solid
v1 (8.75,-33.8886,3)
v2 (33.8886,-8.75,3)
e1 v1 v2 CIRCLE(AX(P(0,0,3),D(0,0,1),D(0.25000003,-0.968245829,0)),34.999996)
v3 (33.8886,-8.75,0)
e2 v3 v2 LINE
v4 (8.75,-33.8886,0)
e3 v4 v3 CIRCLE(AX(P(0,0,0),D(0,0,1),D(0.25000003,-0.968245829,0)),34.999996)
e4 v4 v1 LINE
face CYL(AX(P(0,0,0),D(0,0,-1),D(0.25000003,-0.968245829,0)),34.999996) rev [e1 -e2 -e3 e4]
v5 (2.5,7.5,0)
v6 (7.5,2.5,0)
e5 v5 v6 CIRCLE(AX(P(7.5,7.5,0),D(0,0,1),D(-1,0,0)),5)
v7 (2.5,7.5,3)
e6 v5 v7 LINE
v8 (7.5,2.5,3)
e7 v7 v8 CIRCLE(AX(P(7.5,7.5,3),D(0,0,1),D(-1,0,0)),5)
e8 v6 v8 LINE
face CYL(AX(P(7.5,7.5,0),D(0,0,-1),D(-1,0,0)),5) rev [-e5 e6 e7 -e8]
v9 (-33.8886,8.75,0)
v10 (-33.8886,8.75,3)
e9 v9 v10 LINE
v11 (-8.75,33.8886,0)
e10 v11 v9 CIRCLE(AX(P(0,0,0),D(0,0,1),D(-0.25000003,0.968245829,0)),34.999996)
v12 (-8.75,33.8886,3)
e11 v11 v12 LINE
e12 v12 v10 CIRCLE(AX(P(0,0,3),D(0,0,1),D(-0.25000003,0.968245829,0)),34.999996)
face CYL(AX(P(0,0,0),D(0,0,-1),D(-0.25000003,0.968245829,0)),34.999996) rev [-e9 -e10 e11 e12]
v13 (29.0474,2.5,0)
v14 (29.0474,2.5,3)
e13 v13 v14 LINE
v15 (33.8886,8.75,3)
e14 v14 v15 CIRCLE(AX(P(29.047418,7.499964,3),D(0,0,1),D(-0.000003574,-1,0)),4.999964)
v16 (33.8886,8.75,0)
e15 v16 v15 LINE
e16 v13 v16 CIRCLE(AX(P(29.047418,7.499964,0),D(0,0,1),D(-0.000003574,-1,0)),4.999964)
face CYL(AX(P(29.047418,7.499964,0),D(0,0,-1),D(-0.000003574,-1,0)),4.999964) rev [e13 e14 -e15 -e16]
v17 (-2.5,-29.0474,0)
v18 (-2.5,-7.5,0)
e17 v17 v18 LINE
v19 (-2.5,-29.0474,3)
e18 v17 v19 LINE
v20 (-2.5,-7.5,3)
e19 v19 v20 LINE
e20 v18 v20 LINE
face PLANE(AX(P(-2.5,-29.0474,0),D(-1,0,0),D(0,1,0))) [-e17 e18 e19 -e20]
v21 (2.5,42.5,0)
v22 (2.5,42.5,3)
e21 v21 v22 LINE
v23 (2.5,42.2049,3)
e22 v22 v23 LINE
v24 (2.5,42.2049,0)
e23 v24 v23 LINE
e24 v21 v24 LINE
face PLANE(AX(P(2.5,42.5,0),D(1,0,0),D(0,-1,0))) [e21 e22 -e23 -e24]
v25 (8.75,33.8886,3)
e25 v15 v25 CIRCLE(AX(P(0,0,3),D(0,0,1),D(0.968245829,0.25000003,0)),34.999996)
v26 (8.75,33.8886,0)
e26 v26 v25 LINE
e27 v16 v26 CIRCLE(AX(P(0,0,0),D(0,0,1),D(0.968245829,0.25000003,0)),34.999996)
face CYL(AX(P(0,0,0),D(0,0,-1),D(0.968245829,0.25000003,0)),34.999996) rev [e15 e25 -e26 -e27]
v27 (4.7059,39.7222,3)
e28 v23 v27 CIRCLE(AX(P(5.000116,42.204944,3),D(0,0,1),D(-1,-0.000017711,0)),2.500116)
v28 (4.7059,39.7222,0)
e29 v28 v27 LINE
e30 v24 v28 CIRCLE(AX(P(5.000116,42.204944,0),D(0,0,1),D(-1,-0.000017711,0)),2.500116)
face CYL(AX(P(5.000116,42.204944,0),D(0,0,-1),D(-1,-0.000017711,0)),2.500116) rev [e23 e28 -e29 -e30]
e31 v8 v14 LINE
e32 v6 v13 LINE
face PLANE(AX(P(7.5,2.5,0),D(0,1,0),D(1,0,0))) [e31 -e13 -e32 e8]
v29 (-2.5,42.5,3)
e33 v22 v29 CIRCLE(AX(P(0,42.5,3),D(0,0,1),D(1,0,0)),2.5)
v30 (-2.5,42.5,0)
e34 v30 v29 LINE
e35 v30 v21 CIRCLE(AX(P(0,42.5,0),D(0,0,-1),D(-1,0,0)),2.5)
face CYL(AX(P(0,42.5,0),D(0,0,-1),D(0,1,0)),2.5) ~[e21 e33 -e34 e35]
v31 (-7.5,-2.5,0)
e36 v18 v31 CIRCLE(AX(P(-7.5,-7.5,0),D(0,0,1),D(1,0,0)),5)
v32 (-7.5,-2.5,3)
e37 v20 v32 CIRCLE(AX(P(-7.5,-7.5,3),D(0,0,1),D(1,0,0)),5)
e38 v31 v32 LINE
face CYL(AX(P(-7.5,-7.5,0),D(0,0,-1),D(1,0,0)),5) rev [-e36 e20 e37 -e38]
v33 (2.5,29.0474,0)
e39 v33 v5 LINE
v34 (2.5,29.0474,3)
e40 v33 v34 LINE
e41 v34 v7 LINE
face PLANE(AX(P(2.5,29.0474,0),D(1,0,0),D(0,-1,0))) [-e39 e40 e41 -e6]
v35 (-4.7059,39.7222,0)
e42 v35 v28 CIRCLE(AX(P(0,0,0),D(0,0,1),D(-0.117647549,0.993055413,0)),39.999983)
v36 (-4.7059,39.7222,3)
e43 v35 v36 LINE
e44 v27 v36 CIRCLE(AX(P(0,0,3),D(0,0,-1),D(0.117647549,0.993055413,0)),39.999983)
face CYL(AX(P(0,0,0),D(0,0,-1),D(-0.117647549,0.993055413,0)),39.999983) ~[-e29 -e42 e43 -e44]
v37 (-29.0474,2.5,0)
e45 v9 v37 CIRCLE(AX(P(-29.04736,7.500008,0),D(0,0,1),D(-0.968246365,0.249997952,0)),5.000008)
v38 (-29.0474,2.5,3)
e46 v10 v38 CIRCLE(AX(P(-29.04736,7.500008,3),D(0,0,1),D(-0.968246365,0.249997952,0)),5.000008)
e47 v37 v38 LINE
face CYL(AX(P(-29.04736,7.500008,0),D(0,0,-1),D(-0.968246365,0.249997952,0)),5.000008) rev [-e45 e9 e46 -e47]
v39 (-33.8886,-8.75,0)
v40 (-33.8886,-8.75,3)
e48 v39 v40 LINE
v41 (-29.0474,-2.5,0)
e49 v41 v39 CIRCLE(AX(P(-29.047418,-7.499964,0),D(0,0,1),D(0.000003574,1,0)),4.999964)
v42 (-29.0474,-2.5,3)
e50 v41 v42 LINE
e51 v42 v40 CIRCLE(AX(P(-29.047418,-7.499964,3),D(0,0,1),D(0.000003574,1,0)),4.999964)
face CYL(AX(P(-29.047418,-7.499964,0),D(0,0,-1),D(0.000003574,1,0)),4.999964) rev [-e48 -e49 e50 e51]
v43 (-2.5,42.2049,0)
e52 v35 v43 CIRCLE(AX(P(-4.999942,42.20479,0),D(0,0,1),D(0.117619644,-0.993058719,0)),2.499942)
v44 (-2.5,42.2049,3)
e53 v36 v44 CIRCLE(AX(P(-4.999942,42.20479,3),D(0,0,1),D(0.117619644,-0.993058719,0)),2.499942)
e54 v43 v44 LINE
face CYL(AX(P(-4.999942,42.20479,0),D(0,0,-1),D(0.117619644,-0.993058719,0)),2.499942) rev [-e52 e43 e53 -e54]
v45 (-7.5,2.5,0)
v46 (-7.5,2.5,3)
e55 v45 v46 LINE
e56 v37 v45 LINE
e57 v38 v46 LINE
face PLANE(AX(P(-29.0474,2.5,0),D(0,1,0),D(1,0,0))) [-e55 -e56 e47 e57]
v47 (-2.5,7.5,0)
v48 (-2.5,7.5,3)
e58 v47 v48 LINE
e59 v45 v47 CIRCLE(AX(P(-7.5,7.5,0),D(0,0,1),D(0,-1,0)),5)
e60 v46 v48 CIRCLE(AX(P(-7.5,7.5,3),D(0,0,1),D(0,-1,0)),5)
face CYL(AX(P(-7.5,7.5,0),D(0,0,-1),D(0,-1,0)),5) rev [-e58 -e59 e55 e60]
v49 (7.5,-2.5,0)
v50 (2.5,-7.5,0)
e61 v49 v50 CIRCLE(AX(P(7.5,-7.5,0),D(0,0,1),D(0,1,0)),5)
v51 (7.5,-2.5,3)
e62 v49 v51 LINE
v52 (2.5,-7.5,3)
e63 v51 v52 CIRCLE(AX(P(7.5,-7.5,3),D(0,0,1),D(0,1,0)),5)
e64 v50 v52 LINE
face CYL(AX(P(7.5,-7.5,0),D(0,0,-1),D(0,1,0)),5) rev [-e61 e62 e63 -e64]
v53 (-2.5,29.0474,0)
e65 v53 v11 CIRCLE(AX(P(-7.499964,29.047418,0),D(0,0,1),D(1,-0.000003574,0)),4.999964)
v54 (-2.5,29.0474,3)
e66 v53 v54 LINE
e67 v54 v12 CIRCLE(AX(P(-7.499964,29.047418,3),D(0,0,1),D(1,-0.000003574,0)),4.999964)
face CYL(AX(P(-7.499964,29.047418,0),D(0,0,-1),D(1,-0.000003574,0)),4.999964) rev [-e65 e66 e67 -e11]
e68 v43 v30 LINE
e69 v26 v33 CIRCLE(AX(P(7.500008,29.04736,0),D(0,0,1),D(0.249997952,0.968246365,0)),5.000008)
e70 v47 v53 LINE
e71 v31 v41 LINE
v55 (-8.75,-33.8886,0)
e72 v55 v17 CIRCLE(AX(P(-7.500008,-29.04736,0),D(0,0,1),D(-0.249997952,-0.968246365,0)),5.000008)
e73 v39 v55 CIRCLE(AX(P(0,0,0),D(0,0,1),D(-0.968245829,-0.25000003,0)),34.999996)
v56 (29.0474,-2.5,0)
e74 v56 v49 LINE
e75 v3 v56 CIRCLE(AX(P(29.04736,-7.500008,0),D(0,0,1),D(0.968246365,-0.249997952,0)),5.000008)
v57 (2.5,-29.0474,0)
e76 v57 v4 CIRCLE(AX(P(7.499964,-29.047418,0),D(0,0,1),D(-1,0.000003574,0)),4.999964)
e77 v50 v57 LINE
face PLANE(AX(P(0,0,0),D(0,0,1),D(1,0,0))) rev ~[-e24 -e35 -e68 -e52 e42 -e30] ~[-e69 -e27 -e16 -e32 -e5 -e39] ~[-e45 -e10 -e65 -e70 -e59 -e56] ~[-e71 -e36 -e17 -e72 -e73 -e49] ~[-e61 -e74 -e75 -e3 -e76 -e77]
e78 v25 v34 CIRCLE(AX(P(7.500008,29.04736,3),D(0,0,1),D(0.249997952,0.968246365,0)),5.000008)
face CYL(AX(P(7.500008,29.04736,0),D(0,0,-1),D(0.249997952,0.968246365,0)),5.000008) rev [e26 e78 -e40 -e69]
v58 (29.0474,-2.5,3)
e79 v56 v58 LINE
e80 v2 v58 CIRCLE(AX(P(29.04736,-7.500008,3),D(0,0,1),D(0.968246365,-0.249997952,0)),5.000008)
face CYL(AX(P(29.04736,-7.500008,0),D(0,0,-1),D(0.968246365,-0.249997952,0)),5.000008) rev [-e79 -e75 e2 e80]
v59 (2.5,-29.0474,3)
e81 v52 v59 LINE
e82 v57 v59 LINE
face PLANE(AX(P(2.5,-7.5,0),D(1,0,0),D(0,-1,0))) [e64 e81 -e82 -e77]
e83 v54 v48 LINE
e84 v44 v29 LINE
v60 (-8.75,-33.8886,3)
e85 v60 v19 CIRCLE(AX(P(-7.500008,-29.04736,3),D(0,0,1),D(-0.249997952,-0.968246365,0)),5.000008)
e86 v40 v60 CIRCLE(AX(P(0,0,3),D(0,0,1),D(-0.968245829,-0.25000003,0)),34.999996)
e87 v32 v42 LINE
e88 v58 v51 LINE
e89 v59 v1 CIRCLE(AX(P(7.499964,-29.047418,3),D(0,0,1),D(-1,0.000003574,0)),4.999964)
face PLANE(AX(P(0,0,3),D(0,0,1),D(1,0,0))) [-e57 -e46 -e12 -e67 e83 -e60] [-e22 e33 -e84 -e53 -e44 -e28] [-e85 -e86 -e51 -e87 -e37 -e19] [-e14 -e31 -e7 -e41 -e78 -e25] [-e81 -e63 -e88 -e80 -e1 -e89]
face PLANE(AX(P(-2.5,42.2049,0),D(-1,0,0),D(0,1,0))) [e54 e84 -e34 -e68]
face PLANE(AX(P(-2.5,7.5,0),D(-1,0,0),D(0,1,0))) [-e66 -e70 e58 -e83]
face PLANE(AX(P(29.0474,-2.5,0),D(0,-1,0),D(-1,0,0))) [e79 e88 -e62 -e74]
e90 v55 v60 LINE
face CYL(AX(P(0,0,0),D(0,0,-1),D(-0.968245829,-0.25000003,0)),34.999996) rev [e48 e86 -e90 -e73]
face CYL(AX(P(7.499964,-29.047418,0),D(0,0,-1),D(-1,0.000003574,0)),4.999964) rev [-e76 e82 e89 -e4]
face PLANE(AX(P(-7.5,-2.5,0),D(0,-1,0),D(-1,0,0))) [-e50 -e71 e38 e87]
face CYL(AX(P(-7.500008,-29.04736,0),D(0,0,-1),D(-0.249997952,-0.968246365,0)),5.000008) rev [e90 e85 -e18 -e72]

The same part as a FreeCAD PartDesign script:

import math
import FreeCAD as App
import Part
import Sketcher
from FreeCAD import Vector
Q = App.Units.Quantity

doc = App.newDocument("Part")
body = doc.addObject("PartDesign::Body", "Body")

# Sketch on XY plane
sketch1 = body.newObject("Sketcher::SketchObject", "Sketch")
sketch1.AttachmentSupport = (doc.getObject("XY_Plane"), [""])
sketch1.MapMode = "FlatFace"
sketch1.addGeometry([
    Part.ArcOfCircle(Part.Circle(Vector(5, 42.2, 0), Vector(0, 0, 1), 2.5), math.radians(180), math.radians(263)),  # 0
    Part.LineSegment(Vector(2.5, 42.2, 0), Vector(2.5, 42.5, 0)),  # 1
    Part.ArcOfCircle(Part.Circle(Vector(0, 42.5, 0), Vector(0, 0, 1), 2.5), math.radians(0), math.radians(180)),  # 2
    Part.LineSegment(Vector(-2.5, 42.5, 0), Vector(-2.5, 42.2, 0)),  # 3
    Part.ArcOfCircle(Part.Circle(Vector(-5, 42.2, 0), Vector(0, 0, 1), 2.5), math.radians(-83), math.radians(0)),  # 4
    Part.ArcOfCircle(Part.Circle(Vector(0, 0, 0), Vector(0, 0, 1), 40), math.radians(97), math.radians(443)),  # 5
    Part.ArcOfCircle(Part.Circle(Vector(29.05, 7.5, 0), Vector(0, 0, 1), 5), math.radians(-90), math.radians(14)),  # 6
    Part.LineSegment(Vector(29.05, 2.5, 0), Vector(7.5, 2.5, 0)),  # 7
    Part.ArcOfCircle(Part.Circle(Vector(7.5, 7.5, 0), Vector(0, 0, 1), 5), math.radians(180), math.radians(270)),  # 8
    Part.LineSegment(Vector(2.5, 7.5, 0), Vector(2.5, 29.05, 0)),  # 9
    Part.ArcOfCircle(Part.Circle(Vector(7.5, 29.05, 0), Vector(0, 0, 1), 5), math.radians(76), math.radians(180)),  # 10
    Part.ArcOfCircle(Part.Circle(Vector(0, 0, 0), Vector(0, 0, 1), 35), math.radians(14), math.radians(76)),  # 11
    Part.ArcOfCircle(Part.Circle(Vector(0, 0, 0), Vector(0, 0, 1), 35), math.radians(-166), math.radians(-104)),  # 12
    Part.ArcOfCircle(Part.Circle(Vector(-29.05, -7.5, 0), Vector(0, 0, 1), 5), math.radians(90), math.radians(194)),  # 13
    Part.LineSegment(Vector(-29.05, -2.5, 0), Vector(-7.5, -2.5, 0)),  # 14
    Part.ArcOfCircle(Part.Circle(Vector(-7.5, -7.5, 0), Vector(0, 0, 1), 5), math.radians(0), math.radians(90)),  # 15
    Part.LineSegment(Vector(-2.5, -7.5, 0), Vector(-2.5, -29.05, 0)),  # 16
    Part.ArcOfCircle(Part.Circle(Vector(-7.5, -29.05, 0), Vector(0, 0, 1), 5), math.radians(-104), math.radians(0)),  # 17
    Part.ArcOfCircle(Part.Circle(Vector(0, 0, 0), Vector(0, 0, 1), 35), math.radians(-76), math.radians(-14)),  # 18
    Part.ArcOfCircle(Part.Circle(Vector(7.5, -29.05, 0), Vector(0, 0, 1), 5), math.radians(180), math.radians(284)),  # 19
    Part.LineSegment(Vector(2.5, -29.05, 0), Vector(2.5, -7.5, 0)),  # 20
    Part.ArcOfCircle(Part.Circle(Vector(7.5, -7.5, 0), Vector(0, 0, 1), 5), math.radians(90), math.radians(180)),  # 21
    Part.LineSegment(Vector(7.5, -2.5, 0), Vector(29.05, -2.5, 0)),  # 22
    Part.ArcOfCircle(Part.Circle(Vector(29.05, -7.5, 0), Vector(0, 0, 1), 5), math.radians(-14), math.radians(90)),  # 23
    Part.ArcOfCircle(Part.Circle(Vector(0, 0, 0), Vector(0, 0, 1), 35), math.radians(104), math.radians(166)),  # 24
    Part.ArcOfCircle(Part.Circle(Vector(-7.5, 29.05, 0), Vector(0, 0, 1), 5), math.radians(0), math.radians(104)),  # 25
    Part.LineSegment(Vector(-2.5, 29.05, 0), Vector(-2.5, 7.5, 0)),  # 26
    Part.ArcOfCircle(Part.Circle(Vector(-7.5, 7.5, 0), Vector(0, 0, 1), 5), math.radians(-90), math.radians(0)),  # 27
    Part.LineSegment(Vector(-7.5, 2.5, 0), Vector(-29.05, 2.5, 0)),  # 28
    Part.ArcOfCircle(Part.Circle(Vector(-29.05, 7.5, 0), Vector(0, 0, 1), 5), math.radians(166), math.radians(270)),  # 29
], False)
sketch1.addConstraint([
    Sketcher.Constraint("Tangent", 0, 1, 1, 1),
    Sketcher.Constraint("Tangent", 1, 2, 2, 1),
    Sketcher.Constraint("Tangent", 2, 2, 3, 1),
    Sketcher.Constraint("Tangent", 3, 2, 4, 2),
    Sketcher.Constraint("Tangent", 4, 1, 5, 1),
    Sketcher.Constraint("Tangent", 5, 2, 0, 2),
    Sketcher.Constraint("Tangent", 6, 1, 7, 1),
    Sketcher.Constraint("Tangent", 7, 2, 8, 2),
    Sketcher.Constraint("Tangent", 8, 1, 9, 1),
    Sketcher.Constraint("Tangent", 9, 2, 10, 2),
    Sketcher.Constraint("Tangent", 10, 1, 11, 2),
    Sketcher.Constraint("Tangent", 11, 1, 6, 2),
    Sketcher.Constraint("Tangent", 12, 1, 13, 2),
    Sketcher.Constraint("Tangent", 13, 1, 14, 1),
    Sketcher.Constraint("Tangent", 14, 2, 15, 2),
    Sketcher.Constraint("Tangent", 15, 1, 16, 1),
    Sketcher.Constraint("Tangent", 16, 2, 17, 2),
    Sketcher.Constraint("Tangent", 17, 1, 12, 2),
    Sketcher.Constraint("Tangent", 18, 1, 19, 2),
    Sketcher.Constraint("Tangent", 19, 1, 20, 1),
    Sketcher.Constraint("Tangent", 20, 2, 21, 2),
    Sketcher.Constraint("Tangent", 21, 1, 22, 1),
    Sketcher.Constraint("Tangent", 22, 2, 23, 2),
    Sketcher.Constraint("Tangent", 23, 1, 18, 2),
    Sketcher.Constraint("Tangent", 24, 1, 25, 2),
    Sketcher.Constraint("Tangent", 25, 1, 26, 1),
    Sketcher.Constraint("Tangent", 26, 2, 27, 2),
    Sketcher.Constraint("Tangent", 27, 1, 28, 1),
    Sketcher.Constraint("Tangent", 28, 2, 29, 2),
    Sketcher.Constraint("Tangent", 29, 1, 24, 2),
    Sketcher.Constraint("Vertical", 1),
    Sketcher.Constraint("Vertical", 3),
    Sketcher.Constraint("Horizontal", 7),
    Sketcher.Constraint("Vertical", 9),
    Sketcher.Constraint("Horizontal", 14),
    Sketcher.Constraint("Vertical", 16),
    Sketcher.Constraint("Vertical", 20),
    Sketcher.Constraint("Horizontal", 22),
    Sketcher.Constraint("Vertical", 26),
    Sketcher.Constraint("Horizontal", 28),
    Sketcher.Constraint("Coincident", 5, 3, -1, 1),
    Sketcher.Constraint("Coincident", 11, 3, -1, 1),
    Sketcher.Constraint("Coincident", 12, 3, -1, 1),
    Sketcher.Constraint("Coincident", 18, 3, -1, 1),
    Sketcher.Constraint("Coincident", 24, 3, -1, 1),
    Sketcher.Constraint("Equal", 0, 2),
    Sketcher.Constraint("Equal", 2, 4),
    Sketcher.Constraint("Equal", 6, 8),
    Sketcher.Constraint("Equal", 8, 10),
    Sketcher.Constraint("Equal", 11, 12),
    Sketcher.Constraint("Equal", 10, 13),
    Sketcher.Constraint("Equal", 13, 15),
    Sketcher.Constraint("Equal", 15, 17),
    Sketcher.Constraint("Equal", 12, 18),
    Sketcher.Constraint("Equal", 17, 19),
    Sketcher.Constraint("Equal", 19, 21),
    Sketcher.Constraint("Equal", 21, 23),
    Sketcher.Constraint("Equal", 18, 24),
    Sketcher.Constraint("Equal", 23, 25),
    Sketcher.Constraint("Equal", 25, 27),
    Sketcher.Constraint("Equal", 27, 29),
    Sketcher.Constraint("Symmetric", 8, 3, 15, 3, -1, 1),
    Sketcher.Constraint("Symmetric", 21, 3, 27, 3, -1, 1),
    Sketcher.Constraint("Symmetric", 15, 3, 21, 3, -2),
    Sketcher.Constraint("PointOnObject", 2, 3, -2),
    Sketcher.Constraint("Vertical", 1, 2, 8, 1),
    Sketcher.Constraint("Equal", 28, 9),
    Sketcher.Constraint("Radius", 5, Q("40 mm")),
    Sketcher.Constraint("Radius", 6, Q("5 mm")),
    Sketcher.Constraint("Radius", 11, Q("35 mm")),
    Sketcher.Constraint("Radius", 0, Q("2.5 mm")),
    Sketcher.Constraint("DistanceY", 6, 3, 2, 3, Q("35 mm")),
])
pad1 = body.newObject("PartDesign::Pad", "Pad")
pad1.Profile = sketch1
pad1.Length = 3

doc.recompute()
